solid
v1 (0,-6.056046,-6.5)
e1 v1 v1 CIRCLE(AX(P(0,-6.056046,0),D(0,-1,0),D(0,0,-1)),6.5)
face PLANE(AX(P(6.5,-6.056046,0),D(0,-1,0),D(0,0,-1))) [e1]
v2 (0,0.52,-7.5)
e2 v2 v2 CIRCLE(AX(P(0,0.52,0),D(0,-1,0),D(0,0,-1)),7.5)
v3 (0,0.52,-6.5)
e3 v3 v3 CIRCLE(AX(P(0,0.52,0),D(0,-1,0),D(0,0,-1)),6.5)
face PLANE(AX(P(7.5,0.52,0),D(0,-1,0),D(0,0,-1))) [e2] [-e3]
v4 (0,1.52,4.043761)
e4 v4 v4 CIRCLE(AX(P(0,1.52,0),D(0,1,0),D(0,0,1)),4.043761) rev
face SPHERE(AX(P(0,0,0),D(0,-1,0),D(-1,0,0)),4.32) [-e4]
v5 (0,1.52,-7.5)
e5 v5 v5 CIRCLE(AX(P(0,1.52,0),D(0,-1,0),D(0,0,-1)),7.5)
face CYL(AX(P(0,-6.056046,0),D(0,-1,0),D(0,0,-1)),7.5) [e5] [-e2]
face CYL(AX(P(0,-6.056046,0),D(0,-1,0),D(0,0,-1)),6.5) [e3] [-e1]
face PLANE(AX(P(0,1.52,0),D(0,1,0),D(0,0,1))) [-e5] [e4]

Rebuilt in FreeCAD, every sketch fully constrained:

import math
import FreeCAD as App
import Part
import Sketcher

V = App.Vector


def add_polygon(sketch, points):
    """Adds a closed chain of lines whose ends are joined by coincident constraints."""
    first, n = sketch.GeometryCount, len(points)
    for a, b in zip(points, points[1:] + points[:1]):
        sketch.addGeometry(Part.LineSegment(App.Vector(*a, 0), App.Vector(*b, 0)), False)
    for i in range(n):
        sketch.addConstraint(Sketcher.Constraint("Coincident", first + i, 2, first + (i + 1) % n, 1))

doc = App.newDocument("Part")
body = doc.addObject("PartDesign::Body", "Body")

sketch1 = doc.addObject("Sketcher::SketchObject", "Sketch")
body.addObject(sketch1)
sketch1.AttachmentSupport = (doc.XY_Plane, [""])
sketch1.MapMode = "FlatFace"
sketch1.addGeometry([
    Part.LineSegment(V(0, 4.3, 0), V(0, -4.3, 0)),
    Part.ArcOfCircle(Part.Circle(V(0, 0, 0), V(0, 0, 1), 4.3), math.radians(-90), math.radians(90)),
], False)
sketch1.addConstraint([
    Sketcher.Constraint("Coincident", 0, 1, 1, 2),
    Sketcher.Constraint("Coincident", 1, 1, 0, 2),
    Sketcher.Constraint("Vertical", 0),
    Sketcher.Constraint("Coincident", 1, 3, -1, 1),
    Sketcher.Constraint("PointOnObject", 0, 1, -2),
    Sketcher.Constraint("Radius", 1, 4.32),
])
revolution = doc.addObject("PartDesign::Revolution", "Revolution")
body.addObject(revolution)
revolution.Profile = sketch1
revolution.ReferenceAxis = (sketch1, ["V_Axis"])
revolution.Angle = 360

sketch2 = doc.addObject("Sketcher::SketchObject", "Sketch001")
body.addObject(sketch2)
sketch2.AttachmentSupport = (doc.XY_Plane, [""])
sketch2.MapMode = "FlatFace"
add_polygon(sketch2, [(7.5, 1.5), (0, 1.5), (0, -6.1), (6.5, -6.1), (6.5, 0.5), (7.5, 0.5)])
sketch2.addConstraint([
    Sketcher.Constraint("Horizontal", 0),
    Sketcher.Constraint("Vertical", 1),
    Sketcher.Constraint("Horizontal", 2),
    Sketcher.Constraint("Vertical", 3),
    Sketcher.Constraint("Horizontal", 4),
    Sketcher.Constraint("Vertical", 5),
    Sketcher.Constraint("PointOnObject", 0, 2, -2),
    Sketcher.Constraint("Equal", 4, 5),
    Sketcher.Constraint("DistanceX", 4, 1, 4, 2, 1.0),
    Sketcher.Constraint("DistanceX", 0, 2, 0, 1, 7.5),
    Sketcher.Constraint("DistanceY", -1, 1, 0, 2, 1.52),
    Sketcher.Constraint("DistanceY", 1, 2, 1, 1, 7.576046),
])
revolution2 = doc.addObject("PartDesign::Revolution", "Revolution001")
body.addObject(revolution2)
revolution2.Profile = sketch2
revolution2.ReferenceAxis = (sketch2, ["V_Axis"])
revolution2.Angle = 360

doc.recompute()
